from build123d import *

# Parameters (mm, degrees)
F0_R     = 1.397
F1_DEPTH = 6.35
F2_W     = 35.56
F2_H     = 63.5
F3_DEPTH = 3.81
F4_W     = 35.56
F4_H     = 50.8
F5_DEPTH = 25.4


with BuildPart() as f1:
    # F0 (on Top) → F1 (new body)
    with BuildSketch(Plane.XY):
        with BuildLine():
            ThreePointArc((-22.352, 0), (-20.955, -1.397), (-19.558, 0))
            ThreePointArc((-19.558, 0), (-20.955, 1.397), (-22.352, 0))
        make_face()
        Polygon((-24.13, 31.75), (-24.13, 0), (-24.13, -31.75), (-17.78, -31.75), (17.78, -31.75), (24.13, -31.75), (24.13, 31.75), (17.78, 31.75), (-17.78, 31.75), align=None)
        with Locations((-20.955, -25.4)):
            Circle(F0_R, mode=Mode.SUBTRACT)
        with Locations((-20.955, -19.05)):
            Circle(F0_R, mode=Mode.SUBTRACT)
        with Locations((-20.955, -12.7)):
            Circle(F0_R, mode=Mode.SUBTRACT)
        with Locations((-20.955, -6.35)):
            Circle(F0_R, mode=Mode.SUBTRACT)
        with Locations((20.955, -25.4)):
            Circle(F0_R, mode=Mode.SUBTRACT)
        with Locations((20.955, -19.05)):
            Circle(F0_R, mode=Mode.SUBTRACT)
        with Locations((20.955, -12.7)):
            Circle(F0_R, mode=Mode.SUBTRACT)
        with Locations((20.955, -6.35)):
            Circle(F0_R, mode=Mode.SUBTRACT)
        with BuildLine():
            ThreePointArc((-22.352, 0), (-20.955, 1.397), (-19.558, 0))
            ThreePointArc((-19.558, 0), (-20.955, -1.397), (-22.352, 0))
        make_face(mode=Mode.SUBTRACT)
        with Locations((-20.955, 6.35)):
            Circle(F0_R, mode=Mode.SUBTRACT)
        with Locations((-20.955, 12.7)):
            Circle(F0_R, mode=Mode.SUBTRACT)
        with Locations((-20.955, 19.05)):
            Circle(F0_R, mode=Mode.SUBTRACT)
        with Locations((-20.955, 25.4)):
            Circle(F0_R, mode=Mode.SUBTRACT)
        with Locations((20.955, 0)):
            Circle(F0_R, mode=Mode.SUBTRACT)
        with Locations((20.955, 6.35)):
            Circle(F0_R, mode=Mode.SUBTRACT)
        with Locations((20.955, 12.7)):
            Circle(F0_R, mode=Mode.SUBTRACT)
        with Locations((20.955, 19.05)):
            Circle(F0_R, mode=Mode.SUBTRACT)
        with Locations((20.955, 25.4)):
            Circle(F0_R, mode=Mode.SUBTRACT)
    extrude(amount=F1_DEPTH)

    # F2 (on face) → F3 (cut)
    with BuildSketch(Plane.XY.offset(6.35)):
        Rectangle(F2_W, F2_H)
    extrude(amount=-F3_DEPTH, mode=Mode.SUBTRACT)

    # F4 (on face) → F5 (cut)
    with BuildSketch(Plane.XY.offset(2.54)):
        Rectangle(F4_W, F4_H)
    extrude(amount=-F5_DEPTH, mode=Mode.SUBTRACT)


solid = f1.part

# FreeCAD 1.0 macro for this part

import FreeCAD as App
import Part
import Sketcher
from FreeCAD import Vector
Q = App.Units.Quantity

doc = App.newDocument("Part")
body = doc.addObject("PartDesign::Body", "Body")

# Sketch on XY plane
sketch1 = body.newObject("Sketcher::SketchObject", "Sketch")
sketch1.AttachmentSupport = (doc.getObject("XY_Plane"), [""])
sketch1.MapMode = "FlatFace"
sketch1.addGeometry(Part.LineSegment(Vector(-24.1, 31.8, 0), Vector(-24.1, -31.8, 0)), False)
sketch1.addGeometry(Part.LineSegment(Vector(-24.1, -31.8, 0), Vector(24.1, -31.8, 0)), False)
sketch1.addGeometry(Part.LineSegment(Vector(24.1, -31.8, 0), Vector(24.1, 31.8, 0)), False)
sketch1.addGeometry(Part.LineSegment(Vector(24.1, 31.8, 0), Vector(-24.1, 31.8, 0)), False)
sketch1.addGeometry(Part.Circle(Vector(-21, -25.4, 0), Vector(0, 0, 1), 1.4), False)
sketch1.addGeometry(Part.Circle(Vector(-21, -19.1, 0), Vector(0, 0, 1), 1.4), False)
sketch1.addGeometry(Part.Circle(Vector(-21, -12.7, 0), Vector(0, 0, 1), 1.4), False)
sketch1.addGeometry(Part.Circle(Vector(-21, -6.3, 0), Vector(0, 0, 1), 1.4), False)
sketch1.addGeometry(Part.Circle(Vector(21, -25.4, 0), Vector(0, 0, 1), 1.4), False)
sketch1.addGeometry(Part.Circle(Vector(21, -19.1, 0), Vector(0, 0, 1), 1.4), False)
sketch1.addGeometry(Part.Circle(Vector(21, -12.7, 0), Vector(0, 0, 1), 1.4), False)
sketch1.addGeometry(Part.Circle(Vector(21, -6.3, 0), Vector(0, 0, 1), 1.4), False)
sketch1.addGeometry(Part.Circle(Vector(-21, 0, 0), Vector(0, 0, 1), 1.4), False)
sketch1.addGeometry(Part.Circle(Vector(-21, 6.3, 0), Vector(0, 0, 1), 1.4), False)
sketch1.addGeometry(Part.Circle(Vector(-21, 12.7, 0), Vector(0, 0, 1), 1.4), False)
sketch1.addGeometry(Part.Circle(Vector(-21, 19.1, 0), Vector(0, 0, 1), 1.4), False)
sketch1.addGeometry(Part.Circle(Vector(-21, 25.4, 0), Vector(0, 0, 1), 1.4), False)
sketch1.addGeometry(Part.Circle(Vector(21, 0, 0), Vector(0, 0, 1), 1.4), False)
sketch1.addGeometry(Part.Circle(Vector(21, 6.3, 0), Vector(0, 0, 1), 1.4), False)
sketch1.addGeometry(Part.Circle(Vector(21, 12.7, 0), Vector(0, 0, 1), 1.4), False)
sketch1.addGeometry(Part.Circle(Vector(21, 19.1, 0), Vector(0, 0, 1), 1.4), False)
sketch1.addGeometry(Part.Circle(Vector(21, 25.4, 0), Vector(0, 0, 1), 1.4), False)
sketch1.addConstraint(Sketcher.Constraint("Coincident", 0, 2, 1, 1))
sketch1.addConstraint(Sketcher.Constraint("Coincident", 1, 2, 2, 1))
sketch1.addConstraint(Sketcher.Constraint("Coincident", 2, 2, 3, 1))
sketch1.addConstraint(Sketcher.Constraint("Coincident", 3, 2, 0, 1))
sketch1.addConstraint(Sketcher.Constraint("Vertical", 0))
sketch1.addConstraint(Sketcher.Constraint("Horizontal", 1))
sketch1.addConstraint(Sketcher.Constraint("Vertical", 2))
sketch1.addConstraint(Sketcher.Constraint("Horizontal", 3))
sketch1.addConstraint(Sketcher.Constraint("Equal", 4, 5))
sketch1.addConstraint(Sketcher.Constraint("Equal", 5, 6))
sketch1.addConstraint(Sketcher.Constraint("Equal", 6, 7))
sketch1.addConstraint(Sketcher.Constraint("Equal", 7, 8))
sketch1.addConstraint(Sketcher.Constraint("Equal", 8, 9))
sketch1.addConstraint(Sketcher.Constraint("Equal", 9, 10))
sketch1.addConstraint(Sketcher.Constraint("Equal", 10, 11))
sketch1.addConstraint(Sketcher.Constraint("Equal", 11, 12))
sketch1.addConstraint(Sketcher.Constraint("Equal", 12, 13))
sketch1.addConstraint(Sketcher.Constraint("Equal", 13, 14))
sketch1.addConstraint(Sketcher.Constraint("Equal", 14, 15))
sketch1.addConstraint(Sketcher.Constraint("Equal", 15, 16))
sketch1.addConstraint(Sketcher.Constraint("Equal", 16, 17))
sketch1.addConstraint(Sketcher.Constraint("Equal", 17, 18))
sketch1.addConstraint(Sketcher.Constraint("Equal", 18, 19))
sketch1.addConstraint(Sketcher.Constraint("Equal", 19, 20))
sketch1.addConstraint(Sketcher.Constraint("Equal", 20, 21))
sketch1.addConstraint(Sketcher.Constraint("Symmetric", 11, 3, 13, 3, -1, 1))
sketch1.addConstraint(Sketcher.Constraint("Symmetric", 10, 3, 14, 3, -1, 1))
sketch1.addConstraint(Sketcher.Constraint("Symmetric", 9, 3, 15, 3, -1, 1))
sketch1.addConstraint(Sketcher.Constraint("Symmetric", 8, 3, 16, 3, -1, 1))
sketch1.addConstraint(Sketcher.Constraint("Symmetric", 12, 3, 17, 3, -1, 1))
sketch1.addConstraint(Sketcher.Constraint("Symmetric", 7, 3, 18, 3, -1, 1))
sketch1.addConstraint(Sketcher.Constraint("Symmetric", 6, 3, 19, 3, -1, 1))
sketch1.addConstraint(Sketcher.Constraint("Symmetric", 5, 3, 20, 3, -1, 1))
sketch1.addConstraint(Sketcher.Constraint("Symmetric", 4, 3, 21, 3, -1, 1))
sketch1.addConstraint(Sketcher.Constraint("Symmetric", 0, 2, 2, 2, -1, 1))
sketch1.addConstraint(Sketcher.Constraint("Symmetric", 4, 3, 8, 3, -2))
sketch1.addConstraint(Sketcher.Constraint("Symmetric", 5, 3, 9, 3, -2))
sketch1.addConstraint(Sketcher.Constraint("Symmetric", 6, 3, 10, 3, -2))
sketch1.addConstraint(Sketcher.Constraint("Symmetric", 7, 3, 11, 3, -2))
sketch1.addConstraint(Sketcher.Constraint("PointOnObject", 12, 3, -1))
sketch1.addConstraint(Sketcher.Constraint("Vertical", 4, 3, 5, 3))
sketch1.addConstraint(Sketcher.Constraint("Vertical", 5, 3, 6, 3))
sketch1.addConstraint(Sketcher.Constraint("Vertical", 6, 3, 7, 3))
sketch1.addConstraint(Sketcher.Constraint("Vertical", 7, 3, 12, 3))
sketch1.addConstraint(Sketcher.Constraint("Diameter", 4, Q("0.11 in")))
sketch1.addConstraint(Sketcher.Constraint("DistanceX", 1, 1, 1, 2, Q("1.9 in")))
sketch1.addConstraint(Sketcher.Constraint("DistanceY", 0, 2, 0, 1, Q("2.5 in")))
sketch1.addConstraint(Sketcher.Constraint("DistanceY", 4, 3, -1, 1, Q("1 in")))
sketch1.addConstraint(Sketcher.Constraint("DistanceY", 5, 3, 13, 3, Q("1 in")))
sketch1.addConstraint(Sketcher.Constraint("DistanceY", 6, 3, 14, 3, Q("1 in")))
sketch1.addConstraint(Sketcher.Constraint("DistanceY", 0, 2, 7, 3, Q("1 in")))
sketch1.addConstraint(Sketcher.Constraint("DistanceX", 4, 3, 8, 3, Q("1.65 in")))
pad1 = body.newObject("PartDesign::Pad", "Pad")
pad1.Profile = sketch1
pad1.Length = Q("0.25 in")

# Sketch on XY plane
sketch2 = body.newObject("Sketcher::SketchObject", "Sketch001")
sketch2.AttachmentSupport = (doc.getObject("XY_Plane"), [""])
sketch2.MapMode = "FlatFace"
sketch2.AttachmentOffset = App.Placement(Vector(0, 0, 0.25 * 25.4), App.Rotation())
sketch2.addGeometry(Part.LineSegment(Vector(-18, 32, 0), Vector(-18, -32, 0)), False)
sketch2.addGeometry(Part.LineSegment(Vector(-18, -32, 0), Vector(18, -32, 0)), False)
sketch2.addGeometry(Part.LineSegment(Vector(18, -32, 0), Vector(18, 32, 0)), False)
sketch2.addGeometry(Part.LineSegment(Vector(18, 32, 0), Vector(-18, 32, 0)), False)
sketch2.addConstraint(Sketcher.Constraint("Coincident", 0, 2, 1, 1))
sketch2.addConstraint(Sketcher.Constraint("Coincident", 1, 2, 2, 1))
sketch2.addConstraint(Sketcher.Constraint("Coincident", 2, 2, 3, 1))
sketch2.addConstraint(Sketcher.Constraint("Coincident", 3, 2, 0, 1))
sketch2.addConstraint(Sketcher.Constraint("Vertical", 0))
sketch2.addConstraint(Sketcher.Constraint("Horizontal", 1))
sketch2.addConstraint(Sketcher.Constraint("Vertical", 2))
sketch2.addConstraint(Sketcher.Constraint("Horizontal", 3))
sketch2.addConstraint(Sketcher.Constraint("Symmetric", 0, 2, 2, 2, -1, 1))
sketch2.addConstraint(Sketcher.Constraint("DistanceX", 1, 1, 1, 2, Q("1.4 in")))
sketch2.addConstraint(Sketcher.Constraint("DistanceY", 0, 2, 0, 1, Q("2.5 in")))
pocket1 = body.newObject("PartDesign::Pocket", "Pocket")
pocket1.Profile = sketch2
pocket1.Length = Q("0.15 in")

# Sketch on XY plane
sketch3 = body.newObject("Sketcher::SketchObject", "Sketch002")
sketch3.AttachmentSupport = (doc.getObject("XY_Plane"), [""])
sketch3.MapMode = "FlatFace"
sketch3.AttachmentOffset = App.Placement(Vector(0, 0, 0.1 * 25.4), App.Rotation())
sketch3.addGeometry(Part.LineSegment(Vector(-18, 25, 0), Vector(-18, -25, 0)), False)
sketch3.addGeometry(Part.LineSegment(Vector(-18, -25, 0), Vector(18, -25, 0)), False)
sketch3.addGeometry(Part.LineSegment(Vector(18, -25, 0), Vector(18, 25, 0)), False)
sketch3.addGeometry(Part.LineSegment(Vector(18, 25, 0), Vector(-18, 25, 0)), False)
sketch3.addConstraint(Sketcher.Constraint("Coincident", 0, 2, 1, 1))
sketch3.addConstraint(Sketcher.Constraint("Coincident", 1, 2, 2, 1))
sketch3.addConstraint(Sketcher.Constraint("Coincident", 2, 2, 3, 1))
sketch3.addConstraint(Sketcher.Constraint("Coincident", 3, 2, 0, 1))
sketch3.addConstraint(Sketcher.Constraint("Vertical", 0))
sketch3.addConstraint(Sketcher.Constraint("Horizontal", 1))
sketch3.addConstraint(Sketcher.Constraint("Vertical", 2))
sketch3.addConstraint(Sketcher.Constraint("Horizontal", 3))
sketch3.addConstraint(Sketcher.Constraint("Symmetric", 0, 2, 2, 2, -1, 1))
sketch3.addConstraint(Sketcher.Constraint("DistanceY", 0, 2, 0, 1, Q("2 in")))
sketch3.addConstraint(Sketcher.Constraint("DistanceX", 1, 1, 1, 2, Q("1.4 in")))
pocket2 = body.newObject("PartDesign::Pocket", "Pocket001")
pocket2.Profile = sketch3
pocket2.Length = Q("1 in")

doc.recompute()
